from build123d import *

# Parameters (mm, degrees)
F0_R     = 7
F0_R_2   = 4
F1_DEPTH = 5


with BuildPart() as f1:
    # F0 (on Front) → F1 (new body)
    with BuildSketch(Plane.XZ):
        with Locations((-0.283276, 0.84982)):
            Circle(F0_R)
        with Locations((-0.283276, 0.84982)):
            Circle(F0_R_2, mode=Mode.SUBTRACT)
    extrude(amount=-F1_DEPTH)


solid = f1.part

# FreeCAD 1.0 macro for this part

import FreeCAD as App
import Part
import Sketcher

V = App.Vector

doc = App.newDocument("Part")
body = doc.addObject("PartDesign::Body", "Body")

# Sketch on XZ plane
sketch1 = body.newObject("Sketcher::SketchObject", "Sketch")
sketch1.AttachmentSupport = (doc.getObject("XZ_Plane"), [""])
sketch1.MapMode = "FlatFace"
sketch1.addGeometry([
    Part.Circle(V(-0.3, 0.8, 0), V(0, 0, 1), 7),
    Part.Circle(V(-0.3, 0.8, 0), V(0, 0, 1), 4),
], False)
sketch1.addConstraint([
    Sketcher.Constraint("Coincident", 1, 3, 0, 3),
    Sketcher.Constraint("Diameter", 0, 14.0),
    Sketcher.Constraint("Diameter", 1, 8.0),
    Sketcher.Constraint("DistanceY", -1, 1, 0, 3, 0.84982),
    Sketcher.Constraint("DistanceX", 0, 3, -1, 1, 0.283276),
])
pad1 = body.newObject("PartDesign::Pad", "Pad")
pad1.Profile = sketch1
pad1.Length = 5
pad1.Reversed = True

doc.recompute()
